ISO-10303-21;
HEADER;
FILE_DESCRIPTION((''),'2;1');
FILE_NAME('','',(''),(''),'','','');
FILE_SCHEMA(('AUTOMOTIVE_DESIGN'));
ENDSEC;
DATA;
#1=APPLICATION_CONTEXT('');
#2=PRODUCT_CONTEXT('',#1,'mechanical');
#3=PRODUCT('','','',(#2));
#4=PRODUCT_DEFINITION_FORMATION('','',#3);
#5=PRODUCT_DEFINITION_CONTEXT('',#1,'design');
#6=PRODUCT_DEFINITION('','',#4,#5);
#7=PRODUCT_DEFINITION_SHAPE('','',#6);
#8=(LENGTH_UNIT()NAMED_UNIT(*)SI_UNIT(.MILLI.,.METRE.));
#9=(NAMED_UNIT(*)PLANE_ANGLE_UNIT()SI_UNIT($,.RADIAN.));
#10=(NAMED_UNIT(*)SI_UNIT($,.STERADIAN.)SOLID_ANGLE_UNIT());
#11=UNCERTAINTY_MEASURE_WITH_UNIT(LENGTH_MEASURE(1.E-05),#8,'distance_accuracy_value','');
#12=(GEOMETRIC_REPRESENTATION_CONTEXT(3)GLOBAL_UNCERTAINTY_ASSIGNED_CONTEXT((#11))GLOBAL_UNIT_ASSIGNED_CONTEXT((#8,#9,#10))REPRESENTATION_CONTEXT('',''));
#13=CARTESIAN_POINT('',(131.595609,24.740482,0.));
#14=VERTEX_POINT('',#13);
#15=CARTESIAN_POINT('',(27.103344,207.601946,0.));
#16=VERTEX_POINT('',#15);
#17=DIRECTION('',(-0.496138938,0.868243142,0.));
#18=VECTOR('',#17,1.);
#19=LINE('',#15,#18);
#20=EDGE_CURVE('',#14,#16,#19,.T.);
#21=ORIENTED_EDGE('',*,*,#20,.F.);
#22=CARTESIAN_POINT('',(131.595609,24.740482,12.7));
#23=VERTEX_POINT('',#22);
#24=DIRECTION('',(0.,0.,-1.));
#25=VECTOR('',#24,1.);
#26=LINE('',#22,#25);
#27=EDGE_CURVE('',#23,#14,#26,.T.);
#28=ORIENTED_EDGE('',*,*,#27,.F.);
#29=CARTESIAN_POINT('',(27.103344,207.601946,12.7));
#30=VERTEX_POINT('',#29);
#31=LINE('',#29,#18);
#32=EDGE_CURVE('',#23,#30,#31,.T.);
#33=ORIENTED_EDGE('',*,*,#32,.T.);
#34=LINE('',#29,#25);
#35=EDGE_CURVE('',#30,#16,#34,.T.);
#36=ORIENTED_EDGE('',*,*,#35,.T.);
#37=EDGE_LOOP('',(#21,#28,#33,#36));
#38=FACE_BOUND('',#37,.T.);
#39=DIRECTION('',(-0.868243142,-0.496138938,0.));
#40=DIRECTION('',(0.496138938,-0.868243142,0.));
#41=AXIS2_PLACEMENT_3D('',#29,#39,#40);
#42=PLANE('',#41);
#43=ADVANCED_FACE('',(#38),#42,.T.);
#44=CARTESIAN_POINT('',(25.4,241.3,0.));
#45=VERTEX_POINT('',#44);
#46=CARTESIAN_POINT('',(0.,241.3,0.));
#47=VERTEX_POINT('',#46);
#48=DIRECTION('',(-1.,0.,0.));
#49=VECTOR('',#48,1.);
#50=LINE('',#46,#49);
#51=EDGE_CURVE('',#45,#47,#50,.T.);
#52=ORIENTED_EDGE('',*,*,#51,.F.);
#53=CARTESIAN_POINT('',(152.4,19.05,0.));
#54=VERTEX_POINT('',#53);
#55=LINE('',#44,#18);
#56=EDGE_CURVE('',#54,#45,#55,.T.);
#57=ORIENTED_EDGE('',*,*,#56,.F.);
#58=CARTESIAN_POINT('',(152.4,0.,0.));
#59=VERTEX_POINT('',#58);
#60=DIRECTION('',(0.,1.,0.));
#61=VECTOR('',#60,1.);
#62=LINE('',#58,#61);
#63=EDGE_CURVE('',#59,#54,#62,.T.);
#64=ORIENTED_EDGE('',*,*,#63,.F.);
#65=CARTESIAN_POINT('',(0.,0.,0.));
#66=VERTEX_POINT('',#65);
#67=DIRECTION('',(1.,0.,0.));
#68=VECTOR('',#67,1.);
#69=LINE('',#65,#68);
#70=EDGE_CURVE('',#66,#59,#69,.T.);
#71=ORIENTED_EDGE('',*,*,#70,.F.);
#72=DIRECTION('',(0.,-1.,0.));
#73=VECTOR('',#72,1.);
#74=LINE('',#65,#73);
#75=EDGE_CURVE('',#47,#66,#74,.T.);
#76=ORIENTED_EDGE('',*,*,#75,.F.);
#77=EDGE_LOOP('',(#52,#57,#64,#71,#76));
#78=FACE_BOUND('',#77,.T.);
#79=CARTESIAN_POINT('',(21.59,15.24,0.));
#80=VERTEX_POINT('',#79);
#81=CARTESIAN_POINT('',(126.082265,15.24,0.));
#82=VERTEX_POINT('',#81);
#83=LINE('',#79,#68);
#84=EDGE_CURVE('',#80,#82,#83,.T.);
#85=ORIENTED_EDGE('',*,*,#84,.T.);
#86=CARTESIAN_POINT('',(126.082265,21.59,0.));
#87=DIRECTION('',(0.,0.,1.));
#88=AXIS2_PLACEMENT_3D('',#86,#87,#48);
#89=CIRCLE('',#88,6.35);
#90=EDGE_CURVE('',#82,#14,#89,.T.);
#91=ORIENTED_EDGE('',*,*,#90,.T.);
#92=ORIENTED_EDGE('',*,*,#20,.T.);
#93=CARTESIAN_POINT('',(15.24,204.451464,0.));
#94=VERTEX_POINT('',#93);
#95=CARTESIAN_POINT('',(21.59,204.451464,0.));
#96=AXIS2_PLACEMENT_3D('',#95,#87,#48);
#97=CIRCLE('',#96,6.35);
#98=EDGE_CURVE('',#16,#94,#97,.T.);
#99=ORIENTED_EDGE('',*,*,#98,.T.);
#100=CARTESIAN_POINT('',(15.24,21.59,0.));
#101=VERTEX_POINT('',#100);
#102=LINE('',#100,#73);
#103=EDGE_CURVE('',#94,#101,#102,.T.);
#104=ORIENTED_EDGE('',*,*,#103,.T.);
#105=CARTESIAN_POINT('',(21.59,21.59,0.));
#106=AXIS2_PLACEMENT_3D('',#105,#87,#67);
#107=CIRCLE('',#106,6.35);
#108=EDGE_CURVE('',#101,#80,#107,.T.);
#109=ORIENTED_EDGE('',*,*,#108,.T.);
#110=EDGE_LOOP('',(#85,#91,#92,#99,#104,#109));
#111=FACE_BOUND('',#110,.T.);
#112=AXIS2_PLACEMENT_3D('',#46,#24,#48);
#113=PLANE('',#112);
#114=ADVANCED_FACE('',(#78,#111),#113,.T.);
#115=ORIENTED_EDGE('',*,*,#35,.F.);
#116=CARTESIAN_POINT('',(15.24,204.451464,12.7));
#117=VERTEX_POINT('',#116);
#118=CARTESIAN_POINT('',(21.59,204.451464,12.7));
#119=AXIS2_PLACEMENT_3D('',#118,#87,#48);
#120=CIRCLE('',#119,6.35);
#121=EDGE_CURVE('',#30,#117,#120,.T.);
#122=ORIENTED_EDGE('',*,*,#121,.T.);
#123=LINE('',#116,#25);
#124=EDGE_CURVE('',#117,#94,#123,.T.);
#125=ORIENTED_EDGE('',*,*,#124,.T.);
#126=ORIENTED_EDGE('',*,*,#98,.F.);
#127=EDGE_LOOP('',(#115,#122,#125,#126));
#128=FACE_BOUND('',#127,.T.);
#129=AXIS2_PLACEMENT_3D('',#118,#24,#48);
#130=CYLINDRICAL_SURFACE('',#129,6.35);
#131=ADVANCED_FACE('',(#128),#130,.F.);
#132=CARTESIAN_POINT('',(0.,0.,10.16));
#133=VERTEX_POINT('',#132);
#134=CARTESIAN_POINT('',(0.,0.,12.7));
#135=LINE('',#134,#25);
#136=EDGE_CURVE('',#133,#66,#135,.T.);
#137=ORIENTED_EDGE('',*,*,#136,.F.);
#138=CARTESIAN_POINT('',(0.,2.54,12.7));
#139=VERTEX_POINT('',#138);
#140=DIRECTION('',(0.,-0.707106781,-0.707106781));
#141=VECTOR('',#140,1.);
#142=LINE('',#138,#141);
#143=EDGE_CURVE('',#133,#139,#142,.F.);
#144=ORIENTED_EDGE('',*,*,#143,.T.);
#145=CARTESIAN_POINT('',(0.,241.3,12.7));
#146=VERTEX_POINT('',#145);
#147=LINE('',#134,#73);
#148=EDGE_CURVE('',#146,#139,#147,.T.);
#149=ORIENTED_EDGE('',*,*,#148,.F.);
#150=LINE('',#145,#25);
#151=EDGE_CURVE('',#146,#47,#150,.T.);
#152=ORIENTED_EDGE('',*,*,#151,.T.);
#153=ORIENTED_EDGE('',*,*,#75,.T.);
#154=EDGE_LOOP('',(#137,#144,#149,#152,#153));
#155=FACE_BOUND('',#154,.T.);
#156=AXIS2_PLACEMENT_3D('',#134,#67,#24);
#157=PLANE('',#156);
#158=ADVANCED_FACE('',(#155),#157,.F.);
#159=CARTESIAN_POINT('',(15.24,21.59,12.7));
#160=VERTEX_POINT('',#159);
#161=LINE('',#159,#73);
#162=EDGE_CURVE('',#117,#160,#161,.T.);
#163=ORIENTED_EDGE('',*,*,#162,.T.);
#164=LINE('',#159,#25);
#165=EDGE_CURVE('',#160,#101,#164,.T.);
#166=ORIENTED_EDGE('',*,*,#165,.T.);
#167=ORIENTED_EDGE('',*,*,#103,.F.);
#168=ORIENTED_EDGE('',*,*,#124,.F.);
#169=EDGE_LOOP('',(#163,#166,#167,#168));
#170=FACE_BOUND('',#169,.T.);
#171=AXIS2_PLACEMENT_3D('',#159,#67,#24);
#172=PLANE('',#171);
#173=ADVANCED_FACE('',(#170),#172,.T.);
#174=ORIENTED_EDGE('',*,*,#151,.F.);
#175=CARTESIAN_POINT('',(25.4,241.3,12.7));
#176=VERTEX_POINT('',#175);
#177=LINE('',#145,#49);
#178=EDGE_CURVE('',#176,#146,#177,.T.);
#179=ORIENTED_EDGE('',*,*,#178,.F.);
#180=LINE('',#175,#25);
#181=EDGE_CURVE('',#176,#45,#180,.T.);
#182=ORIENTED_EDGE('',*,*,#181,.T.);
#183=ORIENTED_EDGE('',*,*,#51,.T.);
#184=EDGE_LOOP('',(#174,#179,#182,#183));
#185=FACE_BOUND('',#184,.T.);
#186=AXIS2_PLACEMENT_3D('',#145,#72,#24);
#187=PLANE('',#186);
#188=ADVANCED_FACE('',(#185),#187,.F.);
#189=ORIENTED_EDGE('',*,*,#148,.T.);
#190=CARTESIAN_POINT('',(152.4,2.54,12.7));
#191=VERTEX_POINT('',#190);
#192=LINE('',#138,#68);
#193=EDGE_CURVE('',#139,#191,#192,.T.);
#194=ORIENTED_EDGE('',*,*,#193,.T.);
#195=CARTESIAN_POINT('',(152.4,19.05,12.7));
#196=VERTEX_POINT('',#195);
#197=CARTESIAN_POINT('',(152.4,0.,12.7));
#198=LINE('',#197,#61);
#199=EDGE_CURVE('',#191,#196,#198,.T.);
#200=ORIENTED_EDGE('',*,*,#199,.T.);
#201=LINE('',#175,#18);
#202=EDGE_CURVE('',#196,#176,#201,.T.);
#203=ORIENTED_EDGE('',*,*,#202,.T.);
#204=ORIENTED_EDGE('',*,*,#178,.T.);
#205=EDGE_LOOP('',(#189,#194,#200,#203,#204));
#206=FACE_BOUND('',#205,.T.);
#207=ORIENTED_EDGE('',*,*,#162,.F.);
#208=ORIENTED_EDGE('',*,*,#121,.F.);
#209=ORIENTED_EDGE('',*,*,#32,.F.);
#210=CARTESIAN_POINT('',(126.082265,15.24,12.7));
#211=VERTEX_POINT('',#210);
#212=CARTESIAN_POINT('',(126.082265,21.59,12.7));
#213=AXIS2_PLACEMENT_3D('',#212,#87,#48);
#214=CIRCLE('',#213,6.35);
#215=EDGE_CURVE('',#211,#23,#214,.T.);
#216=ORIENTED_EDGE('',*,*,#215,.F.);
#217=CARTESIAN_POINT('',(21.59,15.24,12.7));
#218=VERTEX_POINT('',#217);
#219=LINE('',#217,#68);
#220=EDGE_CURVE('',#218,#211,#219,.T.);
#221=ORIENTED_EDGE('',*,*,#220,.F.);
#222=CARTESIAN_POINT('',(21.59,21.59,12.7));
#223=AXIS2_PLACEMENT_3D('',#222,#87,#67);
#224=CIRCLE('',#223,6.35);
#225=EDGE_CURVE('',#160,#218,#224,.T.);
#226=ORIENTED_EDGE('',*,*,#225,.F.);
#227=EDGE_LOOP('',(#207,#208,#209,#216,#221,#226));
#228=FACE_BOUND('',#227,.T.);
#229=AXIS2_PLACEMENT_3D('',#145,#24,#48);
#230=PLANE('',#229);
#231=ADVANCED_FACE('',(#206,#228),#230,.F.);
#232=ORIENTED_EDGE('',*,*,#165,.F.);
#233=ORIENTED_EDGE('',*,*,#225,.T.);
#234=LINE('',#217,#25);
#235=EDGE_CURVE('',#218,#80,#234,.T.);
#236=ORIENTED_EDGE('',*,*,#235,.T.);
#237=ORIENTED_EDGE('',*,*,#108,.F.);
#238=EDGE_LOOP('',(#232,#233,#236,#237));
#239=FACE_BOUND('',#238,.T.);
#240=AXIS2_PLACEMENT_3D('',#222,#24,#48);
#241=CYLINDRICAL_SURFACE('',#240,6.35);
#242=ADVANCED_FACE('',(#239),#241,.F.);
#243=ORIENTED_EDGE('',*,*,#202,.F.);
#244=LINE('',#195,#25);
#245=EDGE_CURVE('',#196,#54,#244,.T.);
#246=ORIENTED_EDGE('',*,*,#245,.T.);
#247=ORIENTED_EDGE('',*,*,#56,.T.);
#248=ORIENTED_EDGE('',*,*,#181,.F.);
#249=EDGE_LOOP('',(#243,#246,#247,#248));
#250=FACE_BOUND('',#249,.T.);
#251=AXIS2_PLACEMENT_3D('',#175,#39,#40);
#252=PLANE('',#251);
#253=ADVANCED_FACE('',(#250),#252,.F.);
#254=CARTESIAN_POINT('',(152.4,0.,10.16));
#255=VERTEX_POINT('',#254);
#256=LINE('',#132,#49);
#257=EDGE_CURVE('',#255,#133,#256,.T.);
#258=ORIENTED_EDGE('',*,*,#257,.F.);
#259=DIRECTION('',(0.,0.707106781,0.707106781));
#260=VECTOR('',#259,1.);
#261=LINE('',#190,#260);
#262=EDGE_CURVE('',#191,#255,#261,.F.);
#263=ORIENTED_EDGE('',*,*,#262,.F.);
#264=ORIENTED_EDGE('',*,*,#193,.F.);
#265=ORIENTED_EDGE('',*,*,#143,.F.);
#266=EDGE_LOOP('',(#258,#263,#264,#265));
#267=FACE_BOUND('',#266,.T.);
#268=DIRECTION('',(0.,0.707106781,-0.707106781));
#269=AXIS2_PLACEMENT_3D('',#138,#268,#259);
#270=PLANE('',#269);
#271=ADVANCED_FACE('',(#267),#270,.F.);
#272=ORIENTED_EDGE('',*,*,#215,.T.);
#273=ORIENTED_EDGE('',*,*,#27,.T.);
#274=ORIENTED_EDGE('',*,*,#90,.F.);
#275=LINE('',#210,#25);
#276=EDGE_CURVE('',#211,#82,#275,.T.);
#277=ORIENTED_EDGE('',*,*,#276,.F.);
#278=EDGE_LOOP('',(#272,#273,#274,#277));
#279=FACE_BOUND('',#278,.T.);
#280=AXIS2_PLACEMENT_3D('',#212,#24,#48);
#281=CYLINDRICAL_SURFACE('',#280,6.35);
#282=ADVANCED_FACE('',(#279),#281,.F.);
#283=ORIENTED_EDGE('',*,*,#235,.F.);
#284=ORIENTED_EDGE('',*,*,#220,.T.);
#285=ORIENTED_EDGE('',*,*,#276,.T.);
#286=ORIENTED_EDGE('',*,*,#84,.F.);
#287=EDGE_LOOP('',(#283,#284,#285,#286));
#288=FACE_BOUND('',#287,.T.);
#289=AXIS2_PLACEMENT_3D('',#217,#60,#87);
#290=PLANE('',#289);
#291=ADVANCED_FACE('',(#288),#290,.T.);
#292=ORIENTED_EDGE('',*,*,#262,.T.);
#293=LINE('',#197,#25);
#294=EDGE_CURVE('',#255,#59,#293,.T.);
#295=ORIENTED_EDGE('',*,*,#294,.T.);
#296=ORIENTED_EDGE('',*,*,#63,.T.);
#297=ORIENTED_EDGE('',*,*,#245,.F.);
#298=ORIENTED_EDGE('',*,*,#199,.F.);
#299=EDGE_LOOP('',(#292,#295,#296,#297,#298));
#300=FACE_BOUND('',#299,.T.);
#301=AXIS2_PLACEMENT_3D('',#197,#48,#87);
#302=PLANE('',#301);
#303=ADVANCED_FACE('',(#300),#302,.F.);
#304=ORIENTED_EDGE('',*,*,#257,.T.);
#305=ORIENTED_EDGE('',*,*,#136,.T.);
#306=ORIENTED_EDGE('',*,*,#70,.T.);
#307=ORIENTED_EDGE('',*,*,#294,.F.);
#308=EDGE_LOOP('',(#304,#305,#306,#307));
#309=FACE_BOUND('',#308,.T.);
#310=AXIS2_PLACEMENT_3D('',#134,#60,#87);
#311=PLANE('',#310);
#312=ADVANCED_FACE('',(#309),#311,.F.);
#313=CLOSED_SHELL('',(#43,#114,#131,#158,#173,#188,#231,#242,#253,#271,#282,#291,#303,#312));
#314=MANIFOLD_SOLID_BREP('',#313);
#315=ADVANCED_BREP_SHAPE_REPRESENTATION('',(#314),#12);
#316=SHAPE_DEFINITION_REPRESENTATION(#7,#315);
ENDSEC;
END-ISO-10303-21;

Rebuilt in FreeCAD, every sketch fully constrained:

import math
import FreeCAD as App
import Part
import Sketcher
Q = App.Units.Quantity


def edges_at(feature, points):
    """Names of the edges that pass closest to the given points."""
    edges = feature.Shape.Edges
    near = lambda p: min(range(len(edges)), key=lambda i: edges[i].distToShape(Part.Vertex(*p))[0])
    return sorted({f"Edge{near(p) + 1}" for p in points})


def add_polygon(sketch, points):
    """Adds a closed chain of lines whose ends are joined by coincident constraints."""
    first, n = sketch.GeometryCount, len(points)
    for a, b in zip(points, points[1:] + points[:1]):
        sketch.addGeometry(Part.LineSegment(App.Vector(*a, 0), App.Vector(*b, 0)), False)
    for i in range(n):
        sketch.addConstraint(Sketcher.Constraint("Coincident", first + i, 2, first + (i + 1) % n, 1))

doc = App.newDocument("Part")
params = doc.addObject("Spreadsheet::Sheet", "Params")
for row, (alias, value) in enumerate([
    ("sketch1_width", "6 in"),
    ("sketch1_width2", "1 in"),
    ("sketch1_radius", "0.25 in"),
    ("sketch1_height", "9.5 in"),
    ("sketch1_height2", "0.75 in"),
    ("pad1_length", "0.5 in"),
    ("chamfer_size", "0.1 in"),
], start=1):
    params.set(f"A{row}", alias)
    params.set(f"B{row}", "=" + value)
    params.setAlias(f"B{row}", alias)

body = doc.addObject("PartDesign::Body", "Body")

sketch1 = body.newObject("Sketcher::SketchObject", "Sketch")
sketch1.AttachmentSupport = (doc.getObject("XY_Plane"), [""])
sketch1.MapMode = "FlatFace"
add_polygon(sketch1, [(0, 0), (152, 0), (152, 19), (25, 241), (0, 241)])
sketch1.addGeometry(Part.ArcOfCircle(Part.Circle(App.Vector(22, 22, 0), App.Vector(0, 0, 1), 6), math.radians(180), math.radians(270)), False)
sketch1.addGeometry(Part.LineSegment(App.Vector(15, 22, 0), App.Vector(15, 204, 0)), False)
sketch1.addGeometry(Part.ArcOfCircle(Part.Circle(App.Vector(22, 204, 0), App.Vector(0, 0, 1), 6), math.radians(30), math.radians(180)), False)
sketch1.addGeometry(Part.LineSegment(App.Vector(27, 208, 0), App.Vector(132, 25, 0)), False)
sketch1.addGeometry(Part.ArcOfCircle(Part.Circle(App.Vector(126, 22, 0), App.Vector(0, 0, 1), 6), math.radians(-90), math.radians(30)), False)
sketch1.addGeometry(Part.LineSegment(App.Vector(126, 15, 0), App.Vector(22, 15, 0)), False)
sketch1.addConstraint(Sketcher.Constraint("Tangent", 5, 1, 6, 1))
sketch1.addConstraint(Sketcher.Constraint("Tangent", 6, 2, 7, 2))
sketch1.addConstraint(Sketcher.Constraint("Tangent", 7, 1, 8, 1))
sketch1.addConstraint(Sketcher.Constraint("Tangent", 8, 2, 9, 2))
sketch1.addConstraint(Sketcher.Constraint("Tangent", 9, 1, 10, 1))
sketch1.addConstraint(Sketcher.Constraint("Tangent", 10, 2, 5, 2))
sketch1.addConstraint(Sketcher.Constraint("Horizontal", 0))
sketch1.addConstraint(Sketcher.Constraint("Vertical", 1))
sketch1.addConstraint(Sketcher.Constraint("Horizontal", 3))
sketch1.addConstraint(Sketcher.Constraint("Vertical", 4))
sketch1.addConstraint(Sketcher.Constraint("Vertical", 6))
sketch1.addConstraint(Sketcher.Constraint("Horizontal", 10))
sketch1.addConstraint(Sketcher.Constraint("Coincident", 4, 2, -1, 1))
sketch1.addConstraint(Sketcher.Constraint("Equal", 5, 7))
sketch1.addConstraint(Sketcher.Constraint("Equal", 7, 9))
sketch1.addConstraint(Sketcher.Constraint("Parallel", 2, 8))
sketch1.addConstraint(Sketcher.Constraint("DistanceX", 0, 1, 0, 2, Q("6 in")))
sketch1.addConstraint(Sketcher.Constraint("DistanceX", 3, 2, 3, 1, Q("1 in")))
sketch1.addConstraint(Sketcher.Constraint("Radius", 5, Q("0.25 in")))
sketch1.addConstraint(Sketcher.Constraint("DistanceY", 4, 2, 4, 1, Q("9.5 in")))
sketch1.addConstraint(Sketcher.Constraint("DistanceY", 1, 1, 1, 2, Q("0.75 in")))
sketch1.addConstraint(Sketcher.Constraint("DistanceX", -1, 1, 5, 1, Q("0.6 in")))
sketch1.addConstraint(Sketcher.Constraint("DistanceY", -1, 1, 9, 1, Q("0.6 in")))
sketch1.addConstraint(Sketcher.Constraint("DistanceX", 10, 2, 10, 1, 104.492265))
sketch1.setExpression("Constraints[21]", "Params.sketch1_width")
sketch1.setExpression("Constraints[22]", "Params.sketch1_width2")
sketch1.setExpression("Constraints[23]", "Params.sketch1_radius")
sketch1.setExpression("Constraints[24]", "Params.sketch1_height")
sketch1.setExpression("Constraints[25]", "Params.sketch1_height2")
pad1 = body.newObject("PartDesign::Pad", "Pad")
pad1.Profile = sketch1
pad1.setExpression("Length", "Params.pad1_length")
doc.recompute()

chamfer = body.newObject("PartDesign::Chamfer", "Chamfer")
chamfer.Base = (pad1, edges_at(pad1, [(76.2, 0, 12.7)]))
chamfer.setExpression("Size", "Params.chamfer_size")

doc.recompute()
